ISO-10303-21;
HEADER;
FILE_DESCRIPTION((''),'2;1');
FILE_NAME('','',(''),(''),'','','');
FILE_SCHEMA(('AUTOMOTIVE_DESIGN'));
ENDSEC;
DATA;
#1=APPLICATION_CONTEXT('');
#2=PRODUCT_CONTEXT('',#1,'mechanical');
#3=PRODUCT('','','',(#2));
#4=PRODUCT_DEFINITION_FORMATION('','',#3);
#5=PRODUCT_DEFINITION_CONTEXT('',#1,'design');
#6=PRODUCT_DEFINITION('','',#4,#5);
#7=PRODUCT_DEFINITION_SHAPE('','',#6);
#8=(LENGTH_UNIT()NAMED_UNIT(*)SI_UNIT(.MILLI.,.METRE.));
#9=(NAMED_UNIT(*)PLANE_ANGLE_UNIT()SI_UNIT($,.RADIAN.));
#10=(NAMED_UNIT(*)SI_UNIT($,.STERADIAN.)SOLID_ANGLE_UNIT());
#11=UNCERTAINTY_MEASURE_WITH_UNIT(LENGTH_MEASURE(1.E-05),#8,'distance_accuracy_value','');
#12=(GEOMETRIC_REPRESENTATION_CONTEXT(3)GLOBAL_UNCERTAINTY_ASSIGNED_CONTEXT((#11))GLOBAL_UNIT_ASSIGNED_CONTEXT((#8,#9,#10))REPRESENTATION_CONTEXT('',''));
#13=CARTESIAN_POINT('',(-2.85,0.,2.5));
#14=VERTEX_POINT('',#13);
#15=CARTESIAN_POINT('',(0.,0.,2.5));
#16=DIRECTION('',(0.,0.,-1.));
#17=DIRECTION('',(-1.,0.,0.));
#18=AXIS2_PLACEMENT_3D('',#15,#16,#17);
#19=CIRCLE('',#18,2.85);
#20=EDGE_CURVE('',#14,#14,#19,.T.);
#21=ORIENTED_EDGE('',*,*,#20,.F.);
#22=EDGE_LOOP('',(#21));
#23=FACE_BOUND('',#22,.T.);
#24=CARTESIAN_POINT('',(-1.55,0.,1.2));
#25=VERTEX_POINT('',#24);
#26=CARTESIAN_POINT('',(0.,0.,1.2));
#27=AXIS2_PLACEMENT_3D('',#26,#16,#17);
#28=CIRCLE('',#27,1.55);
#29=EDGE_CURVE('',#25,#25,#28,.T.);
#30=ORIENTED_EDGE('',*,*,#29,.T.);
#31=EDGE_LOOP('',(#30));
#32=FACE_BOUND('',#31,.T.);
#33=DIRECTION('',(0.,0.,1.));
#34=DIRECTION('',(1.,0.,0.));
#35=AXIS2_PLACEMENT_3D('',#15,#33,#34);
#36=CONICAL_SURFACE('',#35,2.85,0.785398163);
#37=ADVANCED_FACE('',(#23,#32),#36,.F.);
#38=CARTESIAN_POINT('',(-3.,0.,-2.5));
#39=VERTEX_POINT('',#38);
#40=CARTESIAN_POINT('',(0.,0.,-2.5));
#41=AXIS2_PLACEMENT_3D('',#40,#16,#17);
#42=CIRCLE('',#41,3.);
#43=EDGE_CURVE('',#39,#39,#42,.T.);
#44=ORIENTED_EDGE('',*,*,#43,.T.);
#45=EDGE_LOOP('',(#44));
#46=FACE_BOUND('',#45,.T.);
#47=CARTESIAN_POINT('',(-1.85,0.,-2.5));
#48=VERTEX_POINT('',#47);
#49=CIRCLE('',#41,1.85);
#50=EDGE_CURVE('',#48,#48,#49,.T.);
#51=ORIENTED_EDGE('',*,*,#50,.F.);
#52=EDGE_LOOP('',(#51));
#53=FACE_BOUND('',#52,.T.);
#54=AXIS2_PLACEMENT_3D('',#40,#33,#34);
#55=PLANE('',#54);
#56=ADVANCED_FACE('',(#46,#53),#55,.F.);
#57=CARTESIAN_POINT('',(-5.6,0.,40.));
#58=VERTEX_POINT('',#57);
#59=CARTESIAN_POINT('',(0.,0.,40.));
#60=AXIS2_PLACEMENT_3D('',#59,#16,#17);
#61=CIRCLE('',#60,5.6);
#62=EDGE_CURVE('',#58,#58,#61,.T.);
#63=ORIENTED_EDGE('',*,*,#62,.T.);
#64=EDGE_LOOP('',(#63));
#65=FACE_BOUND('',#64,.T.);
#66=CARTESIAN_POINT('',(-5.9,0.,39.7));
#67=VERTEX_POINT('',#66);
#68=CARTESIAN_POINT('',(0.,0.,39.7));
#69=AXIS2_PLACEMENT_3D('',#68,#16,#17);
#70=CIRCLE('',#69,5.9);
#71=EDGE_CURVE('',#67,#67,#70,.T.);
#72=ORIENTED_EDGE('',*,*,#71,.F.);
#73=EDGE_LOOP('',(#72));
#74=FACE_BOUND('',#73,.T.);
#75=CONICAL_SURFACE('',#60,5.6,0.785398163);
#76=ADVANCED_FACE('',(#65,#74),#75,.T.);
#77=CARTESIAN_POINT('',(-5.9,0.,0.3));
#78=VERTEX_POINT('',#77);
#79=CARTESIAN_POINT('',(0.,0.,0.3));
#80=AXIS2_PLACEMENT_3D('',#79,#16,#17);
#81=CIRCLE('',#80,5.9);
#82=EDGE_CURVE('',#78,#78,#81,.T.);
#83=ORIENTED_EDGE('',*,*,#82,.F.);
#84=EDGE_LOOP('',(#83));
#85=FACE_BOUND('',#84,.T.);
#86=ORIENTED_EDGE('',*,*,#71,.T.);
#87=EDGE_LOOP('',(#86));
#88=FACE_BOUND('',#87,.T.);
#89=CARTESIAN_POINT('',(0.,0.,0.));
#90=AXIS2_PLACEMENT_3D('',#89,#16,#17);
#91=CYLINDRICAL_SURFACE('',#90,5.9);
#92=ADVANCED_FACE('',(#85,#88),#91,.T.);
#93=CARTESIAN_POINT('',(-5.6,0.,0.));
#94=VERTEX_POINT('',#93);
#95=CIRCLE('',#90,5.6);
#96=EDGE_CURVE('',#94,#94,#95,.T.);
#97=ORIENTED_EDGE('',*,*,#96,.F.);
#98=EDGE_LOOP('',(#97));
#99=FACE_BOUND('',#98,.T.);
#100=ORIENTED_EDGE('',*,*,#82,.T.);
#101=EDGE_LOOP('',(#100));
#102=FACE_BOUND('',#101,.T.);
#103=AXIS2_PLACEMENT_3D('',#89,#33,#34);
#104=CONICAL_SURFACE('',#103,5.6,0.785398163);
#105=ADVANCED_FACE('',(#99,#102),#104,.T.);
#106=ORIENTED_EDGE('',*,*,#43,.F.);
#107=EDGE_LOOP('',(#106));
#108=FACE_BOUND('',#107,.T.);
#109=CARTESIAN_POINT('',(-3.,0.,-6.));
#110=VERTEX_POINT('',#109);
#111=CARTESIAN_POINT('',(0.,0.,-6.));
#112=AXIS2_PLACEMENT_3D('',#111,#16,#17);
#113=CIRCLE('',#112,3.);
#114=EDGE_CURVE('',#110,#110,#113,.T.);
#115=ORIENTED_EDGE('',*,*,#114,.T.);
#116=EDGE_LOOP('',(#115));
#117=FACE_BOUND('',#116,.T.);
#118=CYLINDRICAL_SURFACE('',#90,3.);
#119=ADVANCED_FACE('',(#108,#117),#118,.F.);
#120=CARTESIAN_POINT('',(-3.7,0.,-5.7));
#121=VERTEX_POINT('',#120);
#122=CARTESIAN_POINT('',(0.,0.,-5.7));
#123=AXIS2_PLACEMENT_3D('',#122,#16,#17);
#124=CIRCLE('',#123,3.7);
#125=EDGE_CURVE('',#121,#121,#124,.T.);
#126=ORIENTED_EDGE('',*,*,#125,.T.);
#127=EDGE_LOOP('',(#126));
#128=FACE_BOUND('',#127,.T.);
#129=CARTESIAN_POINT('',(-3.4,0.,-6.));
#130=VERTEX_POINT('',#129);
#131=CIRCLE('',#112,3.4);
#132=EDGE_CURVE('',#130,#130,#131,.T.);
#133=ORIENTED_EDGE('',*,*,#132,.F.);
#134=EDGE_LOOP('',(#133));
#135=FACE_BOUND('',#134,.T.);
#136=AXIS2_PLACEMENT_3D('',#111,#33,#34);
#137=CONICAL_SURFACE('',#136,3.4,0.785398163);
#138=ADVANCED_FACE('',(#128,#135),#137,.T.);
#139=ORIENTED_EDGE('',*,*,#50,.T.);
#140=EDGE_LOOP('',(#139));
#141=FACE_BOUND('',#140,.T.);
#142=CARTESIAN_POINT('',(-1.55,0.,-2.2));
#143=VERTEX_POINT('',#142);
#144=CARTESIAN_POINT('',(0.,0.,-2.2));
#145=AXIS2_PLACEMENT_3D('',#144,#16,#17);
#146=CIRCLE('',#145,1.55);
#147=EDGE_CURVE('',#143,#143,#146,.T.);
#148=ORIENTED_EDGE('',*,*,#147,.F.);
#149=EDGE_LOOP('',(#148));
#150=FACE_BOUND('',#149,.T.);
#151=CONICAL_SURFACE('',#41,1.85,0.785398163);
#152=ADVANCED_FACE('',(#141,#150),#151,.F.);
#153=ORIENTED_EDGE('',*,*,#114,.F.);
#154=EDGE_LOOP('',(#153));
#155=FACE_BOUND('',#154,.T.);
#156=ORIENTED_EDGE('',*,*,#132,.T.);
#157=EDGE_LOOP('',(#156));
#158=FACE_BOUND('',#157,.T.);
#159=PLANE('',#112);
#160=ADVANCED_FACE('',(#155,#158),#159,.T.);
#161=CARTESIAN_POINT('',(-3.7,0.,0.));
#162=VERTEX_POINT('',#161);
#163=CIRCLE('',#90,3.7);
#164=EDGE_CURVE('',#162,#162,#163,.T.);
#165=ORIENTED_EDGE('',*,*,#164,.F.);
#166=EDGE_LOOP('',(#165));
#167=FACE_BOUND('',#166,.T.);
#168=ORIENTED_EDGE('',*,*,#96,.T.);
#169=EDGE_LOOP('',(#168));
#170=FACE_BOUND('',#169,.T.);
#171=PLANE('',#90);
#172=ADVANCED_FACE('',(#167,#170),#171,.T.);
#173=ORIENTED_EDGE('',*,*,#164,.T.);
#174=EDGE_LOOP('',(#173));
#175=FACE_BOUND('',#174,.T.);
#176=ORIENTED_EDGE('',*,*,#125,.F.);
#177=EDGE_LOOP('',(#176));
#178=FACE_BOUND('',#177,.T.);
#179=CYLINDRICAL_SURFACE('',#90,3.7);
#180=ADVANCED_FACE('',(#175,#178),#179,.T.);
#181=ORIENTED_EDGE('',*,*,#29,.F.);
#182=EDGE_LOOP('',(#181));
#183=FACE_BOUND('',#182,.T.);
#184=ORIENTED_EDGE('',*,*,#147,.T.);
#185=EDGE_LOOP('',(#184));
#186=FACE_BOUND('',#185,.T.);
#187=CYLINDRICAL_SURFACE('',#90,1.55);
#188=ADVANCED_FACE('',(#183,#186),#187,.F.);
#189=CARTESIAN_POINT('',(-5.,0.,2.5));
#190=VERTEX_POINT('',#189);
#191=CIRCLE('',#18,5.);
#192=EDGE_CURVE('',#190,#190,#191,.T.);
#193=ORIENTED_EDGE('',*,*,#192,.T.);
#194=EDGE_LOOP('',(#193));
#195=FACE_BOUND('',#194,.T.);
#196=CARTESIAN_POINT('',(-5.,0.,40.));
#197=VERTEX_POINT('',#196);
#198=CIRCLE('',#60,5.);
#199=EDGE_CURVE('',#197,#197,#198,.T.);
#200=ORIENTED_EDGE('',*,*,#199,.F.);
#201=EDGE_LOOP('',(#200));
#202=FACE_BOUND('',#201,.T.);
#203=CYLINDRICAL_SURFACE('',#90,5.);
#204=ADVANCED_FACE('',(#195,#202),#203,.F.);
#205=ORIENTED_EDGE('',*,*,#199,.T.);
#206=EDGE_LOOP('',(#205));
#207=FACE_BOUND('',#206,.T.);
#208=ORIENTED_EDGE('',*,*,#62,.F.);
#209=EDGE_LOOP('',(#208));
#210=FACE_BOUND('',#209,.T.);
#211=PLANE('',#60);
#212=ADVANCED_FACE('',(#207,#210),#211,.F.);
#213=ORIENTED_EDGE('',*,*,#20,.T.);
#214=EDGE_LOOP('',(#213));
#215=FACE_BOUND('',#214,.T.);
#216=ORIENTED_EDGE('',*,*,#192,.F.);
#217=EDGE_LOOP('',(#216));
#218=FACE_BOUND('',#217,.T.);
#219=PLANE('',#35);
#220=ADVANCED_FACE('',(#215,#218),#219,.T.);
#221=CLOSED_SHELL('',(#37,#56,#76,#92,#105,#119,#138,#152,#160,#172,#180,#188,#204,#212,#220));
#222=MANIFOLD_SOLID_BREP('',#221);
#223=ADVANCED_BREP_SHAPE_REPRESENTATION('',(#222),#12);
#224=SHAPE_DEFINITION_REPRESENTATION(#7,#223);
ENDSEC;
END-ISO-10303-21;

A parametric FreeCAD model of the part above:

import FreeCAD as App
import Part
import Sketcher

V = App.Vector
Q = App.Units.Quantity


def add_polygon(sketch, points):
    """Adds a closed chain of lines whose ends are joined by coincident constraints."""
    first, n = sketch.GeometryCount, len(points)
    for a, b in zip(points, points[1:] + points[:1]):
        sketch.addGeometry(Part.LineSegment(App.Vector(*a, 0), App.Vector(*b, 0)), False)
    for i in range(n):
        sketch.addConstraint(Sketcher.Constraint("Coincident", first + i, 2, first + (i + 1) % n, 1))

doc = App.newDocument("Part")
body = doc.addObject("PartDesign::Body", "Body")

sketch1 = body.newObject("Sketcher::SketchObject", "Sketch")
sketch1.AttachmentSupport = (doc.getObject("XZ_Plane"), [""])
sketch1.MapMode = "FlatFace"
add_polygon(sketch1, [(5, 2.5), (5, 40), (5.6, 40), (5.9, 39.7), (5.9, 0.3), (5.6, 0), (3.7, 0), (3.7, -5.7), (3.4, -6), (3, -6), (3, -2.5), (1.85, -2.5), (1.55, -2.2), (1.55, 1.2), (2.85, 2.5)])
sketch1.addConstraint(Sketcher.Constraint("Vertical", 0))
sketch1.addConstraint(Sketcher.Constraint("Horizontal", 1))
sketch1.addConstraint(Sketcher.Constraint("Vertical", 3))
sketch1.addConstraint(Sketcher.Constraint("Horizontal", 5))
sketch1.addConstraint(Sketcher.Constraint("Vertical", 6))
sketch1.addConstraint(Sketcher.Constraint("Horizontal", 8))
sketch1.addConstraint(Sketcher.Constraint("Vertical", 9))
sketch1.addConstraint(Sketcher.Constraint("Horizontal", 10))
sketch1.addConstraint(Sketcher.Constraint("Vertical", 12))
sketch1.addConstraint(Sketcher.Constraint("Horizontal", 14))
sketch1.addConstraint(Sketcher.Constraint("PointOnObject", 4, 2, -1))
sketch1.addConstraint(Sketcher.Constraint("Perpendicular", 2, 4))
sketch1.addConstraint(Sketcher.Constraint("Parallel", 4, 7))
sketch1.addConstraint(Sketcher.Constraint("Perpendicular", 7, 11))
sketch1.addConstraint(Sketcher.Constraint("Perpendicular", 11, 13))
sketch1.addConstraint(Sketcher.Constraint("Vertical", 1, 2, 4, 2))
sketch1.addConstraint(Sketcher.Constraint("Equal", 2, 4))
sketch1.addConstraint(Sketcher.Constraint("Equal", 4, 7))
sketch1.addConstraint(Sketcher.Constraint("Equal", 7, 11))
sketch1.addConstraint(Sketcher.Constraint("DistanceX", 1, 1, 1, 2, Q("0.6 mm")))
sketch1.addConstraint(Sketcher.Constraint("DistanceX", 5, 2, 5, 1, Q("1.9 mm")))
sketch1.addConstraint(Sketcher.Constraint("DistanceX", 8, 2, 8, 1, Q("0.4 mm")))
sketch1.addConstraint(Sketcher.Constraint("DistanceY", 0, 1, 0, 2, Q("37.5 mm")))
sketch1.addConstraint(Sketcher.Constraint("DistanceY", 3, 2, 3, 1, Q("39.4 mm")))
sketch1.addConstraint(Sketcher.Constraint("DistanceY", 6, 2, 6, 1, Q("5.7 mm")))
sketch1.addConstraint(Sketcher.Constraint("DistanceY", 9, 1, 9, 2, Q("3.5 mm")))
sketch1.addConstraint(Sketcher.Constraint("DistanceY", 12, 1, 12, 2, Q("3.4 mm")))
sketch1.addConstraint(Sketcher.Constraint("DistanceX", -1, 1, 0, 2, Q("5 mm")))
sketch1.addConstraint(Sketcher.Constraint("DistanceY", -1, 1, 0, 2, Q("40 mm")))
sketch1.addConstraint(Sketcher.Constraint("DistanceX", 10, 2, 10, 1, Q("1.15 mm")))
revolution = body.newObject("PartDesign::Revolution", "Revolution")
revolution.Profile = sketch1
revolution.ReferenceAxis = (sketch1, ["V_Axis"])
revolution.Angle = 360

doc.recompute()
